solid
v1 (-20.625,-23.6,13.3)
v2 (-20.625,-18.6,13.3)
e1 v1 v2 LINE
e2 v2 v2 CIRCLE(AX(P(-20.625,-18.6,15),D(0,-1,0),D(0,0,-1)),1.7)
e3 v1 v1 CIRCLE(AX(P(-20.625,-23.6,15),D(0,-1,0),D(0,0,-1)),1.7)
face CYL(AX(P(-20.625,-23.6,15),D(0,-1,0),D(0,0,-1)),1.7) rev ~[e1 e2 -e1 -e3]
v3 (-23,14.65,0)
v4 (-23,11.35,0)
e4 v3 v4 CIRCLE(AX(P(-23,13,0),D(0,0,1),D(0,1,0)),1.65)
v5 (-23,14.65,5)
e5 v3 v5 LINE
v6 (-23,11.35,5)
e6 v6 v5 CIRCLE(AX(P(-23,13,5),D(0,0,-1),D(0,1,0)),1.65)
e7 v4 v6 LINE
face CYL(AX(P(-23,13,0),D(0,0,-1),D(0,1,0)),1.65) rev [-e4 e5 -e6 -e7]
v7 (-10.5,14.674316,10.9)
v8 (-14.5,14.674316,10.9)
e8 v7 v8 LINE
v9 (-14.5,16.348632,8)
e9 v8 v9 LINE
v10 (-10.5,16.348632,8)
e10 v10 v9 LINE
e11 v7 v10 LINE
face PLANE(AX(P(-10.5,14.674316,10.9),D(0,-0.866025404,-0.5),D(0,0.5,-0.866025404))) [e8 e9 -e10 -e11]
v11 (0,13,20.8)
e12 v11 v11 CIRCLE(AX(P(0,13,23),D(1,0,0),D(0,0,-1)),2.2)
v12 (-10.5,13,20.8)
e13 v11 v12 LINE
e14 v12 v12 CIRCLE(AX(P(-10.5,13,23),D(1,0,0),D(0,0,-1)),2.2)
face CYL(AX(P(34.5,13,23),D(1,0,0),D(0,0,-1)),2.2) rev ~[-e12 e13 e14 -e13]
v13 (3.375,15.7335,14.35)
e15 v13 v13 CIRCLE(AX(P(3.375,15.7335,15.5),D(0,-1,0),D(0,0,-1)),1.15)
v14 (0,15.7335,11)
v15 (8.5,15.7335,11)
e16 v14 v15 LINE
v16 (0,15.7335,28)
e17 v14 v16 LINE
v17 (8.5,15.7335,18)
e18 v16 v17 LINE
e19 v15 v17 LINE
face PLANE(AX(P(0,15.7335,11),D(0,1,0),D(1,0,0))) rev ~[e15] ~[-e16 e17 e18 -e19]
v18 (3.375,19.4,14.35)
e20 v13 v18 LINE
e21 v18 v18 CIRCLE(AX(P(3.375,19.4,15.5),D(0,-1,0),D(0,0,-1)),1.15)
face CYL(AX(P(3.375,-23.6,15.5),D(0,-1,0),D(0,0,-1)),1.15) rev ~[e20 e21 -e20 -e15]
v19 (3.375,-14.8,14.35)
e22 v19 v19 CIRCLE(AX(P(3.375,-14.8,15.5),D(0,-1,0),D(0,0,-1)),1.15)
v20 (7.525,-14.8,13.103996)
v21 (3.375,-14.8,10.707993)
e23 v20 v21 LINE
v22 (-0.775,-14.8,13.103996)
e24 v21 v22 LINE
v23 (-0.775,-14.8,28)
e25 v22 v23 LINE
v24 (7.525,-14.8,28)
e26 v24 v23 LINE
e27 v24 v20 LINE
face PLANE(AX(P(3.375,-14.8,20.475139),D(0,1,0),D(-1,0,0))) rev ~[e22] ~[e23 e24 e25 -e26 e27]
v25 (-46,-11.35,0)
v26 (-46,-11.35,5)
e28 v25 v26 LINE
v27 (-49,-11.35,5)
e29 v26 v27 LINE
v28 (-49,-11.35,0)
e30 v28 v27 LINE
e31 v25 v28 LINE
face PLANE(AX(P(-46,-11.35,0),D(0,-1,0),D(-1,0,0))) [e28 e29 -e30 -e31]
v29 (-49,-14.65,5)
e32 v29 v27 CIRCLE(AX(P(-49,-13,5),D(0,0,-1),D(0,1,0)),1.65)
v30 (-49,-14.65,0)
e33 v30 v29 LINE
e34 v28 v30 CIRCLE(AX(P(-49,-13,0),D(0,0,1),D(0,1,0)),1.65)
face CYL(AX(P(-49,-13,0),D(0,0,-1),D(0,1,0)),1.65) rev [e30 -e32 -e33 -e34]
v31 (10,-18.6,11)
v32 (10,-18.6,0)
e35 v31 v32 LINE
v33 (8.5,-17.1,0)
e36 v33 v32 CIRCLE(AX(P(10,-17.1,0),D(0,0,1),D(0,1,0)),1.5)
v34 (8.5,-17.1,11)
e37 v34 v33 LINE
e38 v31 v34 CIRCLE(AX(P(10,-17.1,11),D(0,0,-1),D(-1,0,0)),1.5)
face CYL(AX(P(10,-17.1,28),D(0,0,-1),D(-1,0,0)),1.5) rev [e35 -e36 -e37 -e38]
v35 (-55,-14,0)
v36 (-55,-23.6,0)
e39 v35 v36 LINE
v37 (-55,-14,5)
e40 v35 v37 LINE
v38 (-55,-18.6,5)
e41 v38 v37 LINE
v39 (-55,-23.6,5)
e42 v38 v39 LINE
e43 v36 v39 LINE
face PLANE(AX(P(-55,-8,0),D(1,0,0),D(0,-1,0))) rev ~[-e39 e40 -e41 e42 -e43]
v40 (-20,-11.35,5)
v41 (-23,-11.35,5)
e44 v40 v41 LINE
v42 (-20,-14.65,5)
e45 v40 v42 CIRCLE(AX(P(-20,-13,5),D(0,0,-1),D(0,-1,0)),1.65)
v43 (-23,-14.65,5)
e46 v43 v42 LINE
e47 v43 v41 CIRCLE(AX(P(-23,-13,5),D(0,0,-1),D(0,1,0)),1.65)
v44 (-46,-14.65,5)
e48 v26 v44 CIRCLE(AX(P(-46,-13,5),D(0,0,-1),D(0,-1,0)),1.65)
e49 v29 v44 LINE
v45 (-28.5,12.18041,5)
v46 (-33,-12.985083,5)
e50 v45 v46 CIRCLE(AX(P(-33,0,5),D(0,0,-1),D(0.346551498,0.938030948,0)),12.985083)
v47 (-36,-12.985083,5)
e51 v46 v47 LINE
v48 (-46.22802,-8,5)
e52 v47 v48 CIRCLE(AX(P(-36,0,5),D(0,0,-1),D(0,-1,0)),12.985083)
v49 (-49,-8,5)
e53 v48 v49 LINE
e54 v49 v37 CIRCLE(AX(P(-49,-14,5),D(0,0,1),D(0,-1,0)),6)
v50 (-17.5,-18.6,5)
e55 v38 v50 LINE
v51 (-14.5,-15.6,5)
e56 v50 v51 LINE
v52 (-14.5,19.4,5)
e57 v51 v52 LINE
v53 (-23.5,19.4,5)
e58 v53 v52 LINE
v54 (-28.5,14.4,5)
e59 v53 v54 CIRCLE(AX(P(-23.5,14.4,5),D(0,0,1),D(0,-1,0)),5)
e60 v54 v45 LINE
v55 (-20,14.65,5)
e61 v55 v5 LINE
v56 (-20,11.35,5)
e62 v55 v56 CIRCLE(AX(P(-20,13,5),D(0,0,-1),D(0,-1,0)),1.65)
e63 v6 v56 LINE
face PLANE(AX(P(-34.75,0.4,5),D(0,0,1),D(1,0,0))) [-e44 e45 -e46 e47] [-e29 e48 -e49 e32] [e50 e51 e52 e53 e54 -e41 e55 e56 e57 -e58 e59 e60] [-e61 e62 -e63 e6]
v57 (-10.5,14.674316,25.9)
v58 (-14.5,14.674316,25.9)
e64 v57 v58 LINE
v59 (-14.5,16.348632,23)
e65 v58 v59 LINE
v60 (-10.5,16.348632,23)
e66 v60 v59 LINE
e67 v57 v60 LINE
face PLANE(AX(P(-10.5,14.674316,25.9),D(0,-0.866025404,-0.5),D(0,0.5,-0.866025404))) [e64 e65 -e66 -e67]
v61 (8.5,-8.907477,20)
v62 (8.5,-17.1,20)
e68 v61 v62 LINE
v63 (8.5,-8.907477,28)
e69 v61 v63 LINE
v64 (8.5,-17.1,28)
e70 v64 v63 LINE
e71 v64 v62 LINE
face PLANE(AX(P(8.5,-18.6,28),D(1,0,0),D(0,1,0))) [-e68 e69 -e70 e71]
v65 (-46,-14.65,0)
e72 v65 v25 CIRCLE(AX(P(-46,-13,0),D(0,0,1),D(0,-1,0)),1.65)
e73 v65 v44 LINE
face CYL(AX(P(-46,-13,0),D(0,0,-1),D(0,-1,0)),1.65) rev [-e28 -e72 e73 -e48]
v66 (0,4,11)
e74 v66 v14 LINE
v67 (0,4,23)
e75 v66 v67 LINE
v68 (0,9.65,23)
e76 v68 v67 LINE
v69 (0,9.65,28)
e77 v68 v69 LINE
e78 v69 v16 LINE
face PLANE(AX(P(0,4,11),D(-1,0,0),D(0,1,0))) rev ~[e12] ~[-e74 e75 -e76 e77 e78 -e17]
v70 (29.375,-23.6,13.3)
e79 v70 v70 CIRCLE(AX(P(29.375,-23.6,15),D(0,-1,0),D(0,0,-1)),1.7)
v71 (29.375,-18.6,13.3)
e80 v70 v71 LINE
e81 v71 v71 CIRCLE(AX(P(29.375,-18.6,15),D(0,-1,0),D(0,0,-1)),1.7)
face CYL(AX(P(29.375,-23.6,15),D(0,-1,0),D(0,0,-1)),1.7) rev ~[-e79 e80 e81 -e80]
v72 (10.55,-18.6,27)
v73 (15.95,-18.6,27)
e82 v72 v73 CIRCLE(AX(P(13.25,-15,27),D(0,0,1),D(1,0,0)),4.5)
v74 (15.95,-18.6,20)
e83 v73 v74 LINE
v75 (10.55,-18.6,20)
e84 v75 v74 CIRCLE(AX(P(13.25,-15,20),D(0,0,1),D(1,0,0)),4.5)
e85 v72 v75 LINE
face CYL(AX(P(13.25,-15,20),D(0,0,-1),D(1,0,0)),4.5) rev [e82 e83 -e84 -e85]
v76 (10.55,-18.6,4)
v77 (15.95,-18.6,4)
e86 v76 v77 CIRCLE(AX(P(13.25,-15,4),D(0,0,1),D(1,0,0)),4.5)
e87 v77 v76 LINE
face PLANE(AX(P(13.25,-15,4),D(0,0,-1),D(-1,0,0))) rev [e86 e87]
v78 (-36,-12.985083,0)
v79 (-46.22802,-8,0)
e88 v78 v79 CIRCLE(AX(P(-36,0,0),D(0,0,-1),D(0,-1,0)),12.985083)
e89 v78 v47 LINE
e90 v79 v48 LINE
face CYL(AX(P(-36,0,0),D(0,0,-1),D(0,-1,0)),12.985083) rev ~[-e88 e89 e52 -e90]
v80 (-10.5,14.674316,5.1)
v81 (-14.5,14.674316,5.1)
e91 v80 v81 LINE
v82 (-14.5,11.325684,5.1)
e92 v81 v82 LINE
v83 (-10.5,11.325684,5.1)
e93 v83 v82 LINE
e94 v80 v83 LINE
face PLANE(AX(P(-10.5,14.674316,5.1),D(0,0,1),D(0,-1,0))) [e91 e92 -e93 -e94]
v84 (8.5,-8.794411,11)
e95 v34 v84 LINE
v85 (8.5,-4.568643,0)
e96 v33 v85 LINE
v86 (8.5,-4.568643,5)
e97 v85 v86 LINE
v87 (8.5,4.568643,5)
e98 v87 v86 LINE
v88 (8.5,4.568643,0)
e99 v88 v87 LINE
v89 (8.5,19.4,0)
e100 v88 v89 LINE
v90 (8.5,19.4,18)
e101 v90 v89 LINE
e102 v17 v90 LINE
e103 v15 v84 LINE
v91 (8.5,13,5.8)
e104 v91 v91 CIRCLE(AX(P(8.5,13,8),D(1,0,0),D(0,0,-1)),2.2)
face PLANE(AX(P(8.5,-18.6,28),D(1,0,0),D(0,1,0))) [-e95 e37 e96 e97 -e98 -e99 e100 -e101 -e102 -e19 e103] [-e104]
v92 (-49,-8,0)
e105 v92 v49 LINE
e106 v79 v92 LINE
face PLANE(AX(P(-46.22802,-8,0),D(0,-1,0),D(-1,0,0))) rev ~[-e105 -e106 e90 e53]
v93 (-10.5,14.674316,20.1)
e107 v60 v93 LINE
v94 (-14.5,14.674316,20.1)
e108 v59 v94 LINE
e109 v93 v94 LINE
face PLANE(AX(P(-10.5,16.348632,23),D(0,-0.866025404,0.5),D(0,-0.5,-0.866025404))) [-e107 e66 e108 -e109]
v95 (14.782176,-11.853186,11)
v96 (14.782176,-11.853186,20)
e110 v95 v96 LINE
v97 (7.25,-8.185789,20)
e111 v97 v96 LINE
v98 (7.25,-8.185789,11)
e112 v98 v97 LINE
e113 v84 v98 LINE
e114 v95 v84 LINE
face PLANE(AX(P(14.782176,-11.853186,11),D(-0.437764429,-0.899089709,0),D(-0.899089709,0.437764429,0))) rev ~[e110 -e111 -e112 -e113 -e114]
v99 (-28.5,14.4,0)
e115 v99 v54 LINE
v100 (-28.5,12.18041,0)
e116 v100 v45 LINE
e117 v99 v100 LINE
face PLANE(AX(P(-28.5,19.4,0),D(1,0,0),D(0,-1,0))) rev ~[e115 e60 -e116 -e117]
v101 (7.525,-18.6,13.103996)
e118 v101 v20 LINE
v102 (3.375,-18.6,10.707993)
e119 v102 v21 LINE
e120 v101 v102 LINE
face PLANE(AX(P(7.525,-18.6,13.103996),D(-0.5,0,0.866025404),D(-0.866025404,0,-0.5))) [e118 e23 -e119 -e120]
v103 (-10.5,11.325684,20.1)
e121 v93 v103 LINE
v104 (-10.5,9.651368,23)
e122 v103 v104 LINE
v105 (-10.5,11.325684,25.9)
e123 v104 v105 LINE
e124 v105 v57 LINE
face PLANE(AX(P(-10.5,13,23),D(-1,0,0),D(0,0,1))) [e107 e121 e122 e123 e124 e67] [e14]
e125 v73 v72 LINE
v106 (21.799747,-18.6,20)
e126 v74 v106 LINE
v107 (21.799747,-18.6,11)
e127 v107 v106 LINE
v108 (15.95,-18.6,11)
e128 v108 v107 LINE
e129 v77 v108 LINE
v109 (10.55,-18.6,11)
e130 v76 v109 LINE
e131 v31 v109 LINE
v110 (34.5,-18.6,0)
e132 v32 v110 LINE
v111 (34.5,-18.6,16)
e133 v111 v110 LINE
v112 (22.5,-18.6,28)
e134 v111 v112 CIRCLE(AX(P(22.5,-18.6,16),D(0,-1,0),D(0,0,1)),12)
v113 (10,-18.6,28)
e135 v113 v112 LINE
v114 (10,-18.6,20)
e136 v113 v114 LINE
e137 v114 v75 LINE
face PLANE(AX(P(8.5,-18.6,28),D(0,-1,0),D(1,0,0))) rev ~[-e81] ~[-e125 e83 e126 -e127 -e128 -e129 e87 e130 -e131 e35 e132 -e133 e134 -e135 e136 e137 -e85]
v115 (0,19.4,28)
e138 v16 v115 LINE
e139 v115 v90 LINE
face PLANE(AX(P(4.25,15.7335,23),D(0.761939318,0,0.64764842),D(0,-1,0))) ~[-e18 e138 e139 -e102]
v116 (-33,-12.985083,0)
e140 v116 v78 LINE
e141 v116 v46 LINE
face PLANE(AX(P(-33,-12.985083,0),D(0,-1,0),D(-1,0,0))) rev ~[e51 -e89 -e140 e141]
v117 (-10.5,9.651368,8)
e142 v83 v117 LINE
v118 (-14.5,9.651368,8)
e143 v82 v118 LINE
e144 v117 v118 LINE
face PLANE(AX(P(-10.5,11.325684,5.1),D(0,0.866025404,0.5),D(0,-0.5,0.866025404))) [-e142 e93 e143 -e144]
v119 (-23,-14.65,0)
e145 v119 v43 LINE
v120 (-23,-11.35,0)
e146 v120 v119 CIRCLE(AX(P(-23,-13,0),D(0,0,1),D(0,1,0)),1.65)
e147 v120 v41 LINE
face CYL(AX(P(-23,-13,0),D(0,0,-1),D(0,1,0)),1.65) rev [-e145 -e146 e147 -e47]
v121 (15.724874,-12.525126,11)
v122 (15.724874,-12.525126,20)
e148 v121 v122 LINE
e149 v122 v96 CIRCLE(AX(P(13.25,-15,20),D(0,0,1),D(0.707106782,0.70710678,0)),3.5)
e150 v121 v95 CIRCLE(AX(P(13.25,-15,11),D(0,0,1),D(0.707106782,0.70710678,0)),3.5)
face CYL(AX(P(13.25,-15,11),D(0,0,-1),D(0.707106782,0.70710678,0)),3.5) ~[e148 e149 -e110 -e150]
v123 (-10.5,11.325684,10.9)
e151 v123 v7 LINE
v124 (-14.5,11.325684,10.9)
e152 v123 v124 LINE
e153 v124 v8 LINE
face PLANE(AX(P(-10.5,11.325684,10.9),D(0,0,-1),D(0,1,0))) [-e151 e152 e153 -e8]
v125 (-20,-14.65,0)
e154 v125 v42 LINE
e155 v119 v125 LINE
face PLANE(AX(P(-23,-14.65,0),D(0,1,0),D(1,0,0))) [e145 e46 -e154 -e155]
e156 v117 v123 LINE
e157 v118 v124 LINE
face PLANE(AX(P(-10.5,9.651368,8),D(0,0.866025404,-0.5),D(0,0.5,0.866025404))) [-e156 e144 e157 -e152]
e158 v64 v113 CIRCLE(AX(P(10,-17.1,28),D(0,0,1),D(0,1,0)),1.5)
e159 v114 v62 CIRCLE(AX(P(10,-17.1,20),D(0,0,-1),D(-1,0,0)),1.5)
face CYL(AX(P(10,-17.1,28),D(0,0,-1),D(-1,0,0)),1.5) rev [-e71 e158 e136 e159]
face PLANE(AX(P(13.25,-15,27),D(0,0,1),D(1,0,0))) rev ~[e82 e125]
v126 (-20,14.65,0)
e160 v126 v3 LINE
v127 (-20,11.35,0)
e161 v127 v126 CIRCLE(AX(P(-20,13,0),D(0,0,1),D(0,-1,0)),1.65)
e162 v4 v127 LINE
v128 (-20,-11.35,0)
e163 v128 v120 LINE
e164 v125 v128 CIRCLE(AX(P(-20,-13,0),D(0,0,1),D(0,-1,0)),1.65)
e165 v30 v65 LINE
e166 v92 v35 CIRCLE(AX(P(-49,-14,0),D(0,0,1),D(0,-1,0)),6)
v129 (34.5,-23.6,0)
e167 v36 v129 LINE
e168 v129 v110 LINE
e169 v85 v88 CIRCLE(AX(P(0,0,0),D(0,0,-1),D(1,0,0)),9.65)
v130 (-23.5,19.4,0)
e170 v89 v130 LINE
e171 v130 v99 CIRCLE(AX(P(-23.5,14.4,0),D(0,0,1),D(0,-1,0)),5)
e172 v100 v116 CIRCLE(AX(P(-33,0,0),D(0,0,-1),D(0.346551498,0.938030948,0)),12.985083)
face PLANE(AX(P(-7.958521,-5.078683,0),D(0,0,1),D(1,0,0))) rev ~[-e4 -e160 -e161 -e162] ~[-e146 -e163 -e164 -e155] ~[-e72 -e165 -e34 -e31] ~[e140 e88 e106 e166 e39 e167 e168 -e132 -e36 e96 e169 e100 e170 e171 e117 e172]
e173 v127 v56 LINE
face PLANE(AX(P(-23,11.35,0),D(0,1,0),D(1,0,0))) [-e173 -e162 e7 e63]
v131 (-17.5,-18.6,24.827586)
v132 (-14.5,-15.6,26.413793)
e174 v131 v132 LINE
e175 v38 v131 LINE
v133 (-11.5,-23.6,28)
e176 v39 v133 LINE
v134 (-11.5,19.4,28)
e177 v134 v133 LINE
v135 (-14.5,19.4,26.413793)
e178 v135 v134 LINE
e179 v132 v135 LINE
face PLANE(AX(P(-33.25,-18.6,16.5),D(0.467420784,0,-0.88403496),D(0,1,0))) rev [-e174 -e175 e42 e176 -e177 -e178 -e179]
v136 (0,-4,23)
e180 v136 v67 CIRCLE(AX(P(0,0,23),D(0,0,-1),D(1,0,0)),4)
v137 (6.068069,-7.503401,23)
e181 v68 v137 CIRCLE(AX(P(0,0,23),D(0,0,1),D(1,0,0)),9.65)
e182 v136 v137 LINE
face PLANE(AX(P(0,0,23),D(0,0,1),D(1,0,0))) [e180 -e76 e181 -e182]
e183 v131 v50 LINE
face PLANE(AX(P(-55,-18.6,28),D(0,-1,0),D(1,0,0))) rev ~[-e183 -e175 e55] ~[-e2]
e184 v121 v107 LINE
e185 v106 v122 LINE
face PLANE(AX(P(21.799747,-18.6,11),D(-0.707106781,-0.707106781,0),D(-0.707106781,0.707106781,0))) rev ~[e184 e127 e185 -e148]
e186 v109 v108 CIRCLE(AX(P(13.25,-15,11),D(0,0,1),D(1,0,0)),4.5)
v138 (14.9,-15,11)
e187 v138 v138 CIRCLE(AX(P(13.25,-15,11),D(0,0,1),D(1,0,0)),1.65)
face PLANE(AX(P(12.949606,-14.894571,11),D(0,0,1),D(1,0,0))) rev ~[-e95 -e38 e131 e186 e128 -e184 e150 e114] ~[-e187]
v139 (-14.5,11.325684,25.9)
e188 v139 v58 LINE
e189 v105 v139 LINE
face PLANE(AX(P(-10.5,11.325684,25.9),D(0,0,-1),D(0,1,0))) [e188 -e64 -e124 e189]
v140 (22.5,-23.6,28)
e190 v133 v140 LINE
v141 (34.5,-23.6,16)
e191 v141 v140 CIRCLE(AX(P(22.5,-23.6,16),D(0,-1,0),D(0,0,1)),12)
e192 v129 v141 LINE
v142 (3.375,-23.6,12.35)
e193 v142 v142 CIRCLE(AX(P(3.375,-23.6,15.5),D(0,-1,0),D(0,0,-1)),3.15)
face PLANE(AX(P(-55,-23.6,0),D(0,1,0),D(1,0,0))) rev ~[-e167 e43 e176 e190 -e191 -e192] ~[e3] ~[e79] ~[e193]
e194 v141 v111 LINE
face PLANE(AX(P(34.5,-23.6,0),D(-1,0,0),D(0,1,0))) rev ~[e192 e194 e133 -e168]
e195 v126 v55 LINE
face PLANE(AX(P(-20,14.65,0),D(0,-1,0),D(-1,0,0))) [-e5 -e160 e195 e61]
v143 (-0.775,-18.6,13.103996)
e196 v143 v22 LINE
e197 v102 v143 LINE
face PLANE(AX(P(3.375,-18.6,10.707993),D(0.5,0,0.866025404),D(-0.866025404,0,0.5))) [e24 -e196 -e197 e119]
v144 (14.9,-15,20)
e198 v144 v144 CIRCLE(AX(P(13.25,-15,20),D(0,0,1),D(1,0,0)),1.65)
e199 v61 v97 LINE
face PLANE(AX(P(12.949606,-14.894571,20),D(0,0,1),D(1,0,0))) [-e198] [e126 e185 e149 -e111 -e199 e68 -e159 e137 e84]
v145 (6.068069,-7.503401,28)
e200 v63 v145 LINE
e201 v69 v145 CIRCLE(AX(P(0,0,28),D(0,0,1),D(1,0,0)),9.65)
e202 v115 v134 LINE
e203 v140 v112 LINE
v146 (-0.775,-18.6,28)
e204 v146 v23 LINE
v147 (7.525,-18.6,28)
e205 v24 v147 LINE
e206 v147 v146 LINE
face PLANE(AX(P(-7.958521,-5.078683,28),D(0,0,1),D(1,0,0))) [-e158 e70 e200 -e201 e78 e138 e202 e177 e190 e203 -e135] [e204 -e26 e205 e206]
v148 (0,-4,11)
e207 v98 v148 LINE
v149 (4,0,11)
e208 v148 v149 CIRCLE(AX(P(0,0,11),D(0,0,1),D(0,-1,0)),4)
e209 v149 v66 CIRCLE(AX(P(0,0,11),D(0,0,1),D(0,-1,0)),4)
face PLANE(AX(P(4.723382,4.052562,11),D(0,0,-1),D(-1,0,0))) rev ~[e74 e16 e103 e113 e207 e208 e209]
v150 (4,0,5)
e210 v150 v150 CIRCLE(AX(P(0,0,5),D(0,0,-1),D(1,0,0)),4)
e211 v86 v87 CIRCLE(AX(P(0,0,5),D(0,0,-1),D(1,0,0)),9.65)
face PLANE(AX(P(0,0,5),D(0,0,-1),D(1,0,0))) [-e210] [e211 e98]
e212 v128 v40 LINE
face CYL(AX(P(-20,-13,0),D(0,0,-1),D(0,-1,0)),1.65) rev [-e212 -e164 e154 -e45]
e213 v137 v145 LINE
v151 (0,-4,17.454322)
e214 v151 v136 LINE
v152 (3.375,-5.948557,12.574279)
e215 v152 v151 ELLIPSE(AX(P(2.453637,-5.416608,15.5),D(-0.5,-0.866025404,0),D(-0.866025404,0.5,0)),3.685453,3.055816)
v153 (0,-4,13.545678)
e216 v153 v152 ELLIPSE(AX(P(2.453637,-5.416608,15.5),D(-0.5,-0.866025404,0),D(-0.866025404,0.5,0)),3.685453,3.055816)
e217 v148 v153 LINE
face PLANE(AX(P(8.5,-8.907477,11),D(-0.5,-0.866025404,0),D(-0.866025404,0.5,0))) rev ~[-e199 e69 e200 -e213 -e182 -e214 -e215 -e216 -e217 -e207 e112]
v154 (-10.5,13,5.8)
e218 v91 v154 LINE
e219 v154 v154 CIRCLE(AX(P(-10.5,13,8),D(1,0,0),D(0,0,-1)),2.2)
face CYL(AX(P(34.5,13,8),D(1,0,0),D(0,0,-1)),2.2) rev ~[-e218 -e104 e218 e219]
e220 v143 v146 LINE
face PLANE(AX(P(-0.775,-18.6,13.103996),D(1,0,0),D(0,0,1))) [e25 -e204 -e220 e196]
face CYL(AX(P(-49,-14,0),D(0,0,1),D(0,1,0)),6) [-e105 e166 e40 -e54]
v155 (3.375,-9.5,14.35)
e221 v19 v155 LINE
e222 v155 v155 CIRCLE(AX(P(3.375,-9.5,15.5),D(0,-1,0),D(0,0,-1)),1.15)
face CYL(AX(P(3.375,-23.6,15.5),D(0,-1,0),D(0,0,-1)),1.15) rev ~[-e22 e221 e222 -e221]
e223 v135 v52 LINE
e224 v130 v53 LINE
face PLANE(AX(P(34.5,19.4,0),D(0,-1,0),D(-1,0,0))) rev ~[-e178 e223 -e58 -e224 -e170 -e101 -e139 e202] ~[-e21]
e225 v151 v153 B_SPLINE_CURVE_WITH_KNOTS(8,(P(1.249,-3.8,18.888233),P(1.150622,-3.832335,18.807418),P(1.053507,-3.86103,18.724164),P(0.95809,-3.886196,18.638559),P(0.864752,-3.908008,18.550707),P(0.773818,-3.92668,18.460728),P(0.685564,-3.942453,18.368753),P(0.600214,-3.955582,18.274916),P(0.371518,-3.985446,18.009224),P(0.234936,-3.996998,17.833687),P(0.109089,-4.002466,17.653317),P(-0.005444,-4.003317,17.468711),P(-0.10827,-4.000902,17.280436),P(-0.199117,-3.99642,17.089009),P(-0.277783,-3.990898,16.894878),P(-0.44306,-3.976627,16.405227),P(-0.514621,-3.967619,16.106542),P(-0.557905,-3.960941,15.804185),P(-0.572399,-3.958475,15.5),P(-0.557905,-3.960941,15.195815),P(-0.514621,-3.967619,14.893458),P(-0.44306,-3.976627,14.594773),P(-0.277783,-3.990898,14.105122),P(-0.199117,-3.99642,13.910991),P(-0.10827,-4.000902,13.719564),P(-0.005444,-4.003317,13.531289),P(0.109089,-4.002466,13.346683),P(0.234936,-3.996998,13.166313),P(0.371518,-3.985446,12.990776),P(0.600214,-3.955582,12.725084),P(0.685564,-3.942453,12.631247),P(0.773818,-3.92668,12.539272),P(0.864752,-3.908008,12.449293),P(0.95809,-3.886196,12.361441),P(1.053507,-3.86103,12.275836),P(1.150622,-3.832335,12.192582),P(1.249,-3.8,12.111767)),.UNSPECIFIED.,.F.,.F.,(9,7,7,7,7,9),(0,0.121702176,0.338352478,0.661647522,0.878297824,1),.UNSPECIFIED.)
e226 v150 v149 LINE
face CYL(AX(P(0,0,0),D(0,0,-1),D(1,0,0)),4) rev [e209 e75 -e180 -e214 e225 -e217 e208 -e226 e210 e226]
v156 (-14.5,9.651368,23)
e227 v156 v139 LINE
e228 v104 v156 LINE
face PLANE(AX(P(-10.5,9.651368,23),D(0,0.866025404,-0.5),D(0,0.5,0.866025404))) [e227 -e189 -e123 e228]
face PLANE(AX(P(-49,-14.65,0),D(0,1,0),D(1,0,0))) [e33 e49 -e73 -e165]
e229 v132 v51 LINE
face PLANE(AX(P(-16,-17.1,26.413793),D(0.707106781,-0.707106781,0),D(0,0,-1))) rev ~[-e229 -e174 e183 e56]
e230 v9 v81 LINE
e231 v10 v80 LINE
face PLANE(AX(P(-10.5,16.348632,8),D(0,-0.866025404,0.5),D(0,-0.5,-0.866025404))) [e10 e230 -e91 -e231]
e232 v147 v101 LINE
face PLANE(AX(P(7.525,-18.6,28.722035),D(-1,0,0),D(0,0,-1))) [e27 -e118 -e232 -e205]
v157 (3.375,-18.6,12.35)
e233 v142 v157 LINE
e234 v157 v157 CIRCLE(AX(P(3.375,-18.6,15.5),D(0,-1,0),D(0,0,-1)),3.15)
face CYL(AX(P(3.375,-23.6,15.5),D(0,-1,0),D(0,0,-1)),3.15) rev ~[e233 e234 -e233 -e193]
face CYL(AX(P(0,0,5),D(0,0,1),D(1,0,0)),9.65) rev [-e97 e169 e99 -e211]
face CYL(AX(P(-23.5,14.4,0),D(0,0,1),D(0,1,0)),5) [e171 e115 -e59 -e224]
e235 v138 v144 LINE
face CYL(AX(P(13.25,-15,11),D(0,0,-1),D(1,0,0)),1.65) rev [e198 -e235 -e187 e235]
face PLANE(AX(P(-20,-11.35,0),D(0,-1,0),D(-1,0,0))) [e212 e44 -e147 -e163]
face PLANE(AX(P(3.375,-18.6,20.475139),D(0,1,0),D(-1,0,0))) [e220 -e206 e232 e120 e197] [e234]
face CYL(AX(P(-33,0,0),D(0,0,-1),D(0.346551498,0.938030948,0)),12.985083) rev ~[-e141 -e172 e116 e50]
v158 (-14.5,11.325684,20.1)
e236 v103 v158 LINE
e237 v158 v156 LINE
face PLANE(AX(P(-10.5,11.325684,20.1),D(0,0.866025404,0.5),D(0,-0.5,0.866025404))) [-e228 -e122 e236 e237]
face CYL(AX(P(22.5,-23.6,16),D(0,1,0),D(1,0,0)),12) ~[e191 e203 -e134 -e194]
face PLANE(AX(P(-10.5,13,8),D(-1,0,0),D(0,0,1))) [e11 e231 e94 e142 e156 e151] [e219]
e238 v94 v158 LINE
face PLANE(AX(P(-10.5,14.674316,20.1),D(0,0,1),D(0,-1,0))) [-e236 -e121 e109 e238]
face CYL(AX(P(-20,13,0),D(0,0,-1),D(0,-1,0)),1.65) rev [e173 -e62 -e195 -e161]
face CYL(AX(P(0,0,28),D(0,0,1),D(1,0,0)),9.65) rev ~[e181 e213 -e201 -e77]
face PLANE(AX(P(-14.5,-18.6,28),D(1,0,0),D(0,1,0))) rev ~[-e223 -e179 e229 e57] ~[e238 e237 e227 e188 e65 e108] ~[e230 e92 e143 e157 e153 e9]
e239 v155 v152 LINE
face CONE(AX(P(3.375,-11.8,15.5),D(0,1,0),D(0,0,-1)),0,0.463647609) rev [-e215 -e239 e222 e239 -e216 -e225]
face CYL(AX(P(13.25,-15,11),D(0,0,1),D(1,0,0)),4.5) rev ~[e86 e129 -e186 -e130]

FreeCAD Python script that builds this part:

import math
import FreeCAD as App
import Part
import Sketcher

V = App.Vector
Q = App.Units.Quantity


def edges_at(feature, points):
    """Names of the edges that pass closest to the given points."""
    edges = feature.Shape.Edges
    near = lambda p: min(range(len(edges)), key=lambda i: edges[i].distToShape(Part.Vertex(*p))[0])
    return sorted({f"Edge{near(p) + 1}" for p in points})


def add_polygon(sketch, points):
    """Adds a closed chain of lines whose ends are joined by coincident constraints."""
    first, n = sketch.GeometryCount, len(points)
    for a, b in zip(points, points[1:] + points[:1]):
        sketch.addGeometry(Part.LineSegment(App.Vector(*a, 0), App.Vector(*b, 0)), False)
    for i in range(n):
        sketch.addConstraint(Sketcher.Constraint("Coincident", first + i, 2, first + (i + 1) % n, 1))

doc = App.newDocument("Part")
body = doc.addObject("PartDesign::Body", "Body")

# Sketch on XY plane
sketch1 = body.newObject("Sketcher::SketchObject", "Sketch")
sketch1.AttachmentSupport = (doc.getObject("XY_Plane"), [""])
sketch1.MapMode = "FlatFace"
sketch1.addGeometry([
    Part.LineSegment(V(-55, -23.6, 0), V(34.5, -23.6, 0)),  # 0
    Part.LineSegment(V(34.5, -23.6, 0), V(34.5, 19.4, 0)),  # 1
    Part.LineSegment(V(34.5, 19.4, 0), V(-28.5, 19.4, 0)),  # 2
    Part.LineSegment(V(-28.5, 19.4, 0), V(-28.5, 12.18041, 0)),  # 3
    Part.ArcOfCircle(Part.Circle(V(-33, 0, 0), V(0, 0, 1), 12.985083), math.radians(-90), math.radians(69.723466)),  # 4
    Part.LineSegment(V(-33, -12.985083, 0), V(-36, -12.985083, 0)),  # 5
    Part.ArcOfCircle(Part.Circle(V(-36, 0, 0), V(0, 0, 1), 12.985083), math.radians(-141.968723), math.radians(-90)),  # 6
    Part.LineSegment(V(-46.22802, -8, 0), V(-55, -8, 0)),  # 7
    Part.LineSegment(V(-55, -8, 0), V(-55, -23.6, 0)),  # 8
    Part.LineSegment(V(-49, -11.35, 0), V(-46, -11.35, 0)),  # 9
    Part.ArcOfCircle(Part.Circle(V(-46, -13, 0), V(0, 0, 1), 1.65), math.radians(-90), math.radians(90)),  # 10
    Part.LineSegment(V(-46, -14.65, 0), V(-49, -14.65, 0)),  # 11
    Part.ArcOfCircle(Part.Circle(V(-49, -13, 0), V(0, 0, 1), 1.65), math.radians(90), math.radians(270)),  # 12
    Part.LineSegment(V(-20, -14.65, 0), V(-23, -14.65, 0)),  # 13
    Part.ArcOfCircle(Part.Circle(V(-23, -13, 0), V(0, 0, 1), 1.65), math.radians(90), math.radians(270)),  # 14
    Part.LineSegment(V(-23, -11.35, 0), V(-20, -11.35, 0)),  # 15
    Part.ArcOfCircle(Part.Circle(V(-20, -13, 0), V(0, 0, 1), 1.65), math.radians(-90), math.radians(90)),  # 16
    Part.Circle(V(0, 0, 0), V(0, 0, 1), 4),  # 17
    Part.LineSegment(V(-20, 11.35, 0), V(-23, 11.35, 0)),  # 18
    Part.ArcOfCircle(Part.Circle(V(-23, 13, 0), V(0, 0, 1), 1.65), math.radians(90), math.radians(270)),  # 19
    Part.LineSegment(V(-23, 14.65, 0), V(-20, 14.65, 0)),  # 20
    Part.ArcOfCircle(Part.Circle(V(-20, 13, 0), V(0, 0, 1), 1.65), math.radians(-90), math.radians(90)),  # 21
], False)
sketch1.addConstraint([
    Sketcher.Constraint("Coincident", 0, 2, 1, 1),
    Sketcher.Constraint("Coincident", 1, 2, 2, 1),
    Sketcher.Constraint("Coincident", 2, 2, 3, 1),
    Sketcher.Constraint("Coincident", 3, 2, 4, 2),
    Sketcher.Constraint("Tangent", 4, 1, 5, 1),
    Sketcher.Constraint("Tangent", 5, 2, 6, 2),
    Sketcher.Constraint("Coincident", 6, 1, 7, 1),
    Sketcher.Constraint("Coincident", 7, 2, 8, 1),
    Sketcher.Constraint("Coincident", 8, 2, 0, 1),
    Sketcher.Constraint("Tangent", 9, 2, 10, 2),
    Sketcher.Constraint("Tangent", 10, 1, 11, 1),
    Sketcher.Constraint("Tangent", 11, 2, 12, 2),
    Sketcher.Constraint("Tangent", 12, 1, 9, 1),
    Sketcher.Constraint("Tangent", 13, 2, 14, 2),
    Sketcher.Constraint("Tangent", 14, 1, 15, 1),
    Sketcher.Constraint("Tangent", 15, 2, 16, 2),
    Sketcher.Constraint("Tangent", 16, 1, 13, 1),
    Sketcher.Constraint("Tangent", 18, 2, 19, 2),
    Sketcher.Constraint("Tangent", 19, 1, 20, 1),
    Sketcher.Constraint("Tangent", 20, 2, 21, 2),
    Sketcher.Constraint("Tangent", 21, 1, 18, 1),
    Sketcher.Constraint("Horizontal", 0),
    Sketcher.Constraint("Vertical", 1),
    Sketcher.Constraint("Horizontal", 2),
    Sketcher.Constraint("Vertical", 3),
    Sketcher.Constraint("Horizontal", 5),
    Sketcher.Constraint("Horizontal", 7),
    Sketcher.Constraint("Vertical", 8),
    Sketcher.Constraint("Horizontal", 9),
    Sketcher.Constraint("Horizontal", 11),
    Sketcher.Constraint("Horizontal", 13),
    Sketcher.Constraint("Horizontal", 15),
    Sketcher.Constraint("Horizontal", 18),
    Sketcher.Constraint("Horizontal", 20),
    Sketcher.Constraint("Coincident", 17, 3, -1, 1),
    Sketcher.Constraint("Equal", 4, 6),
    Sketcher.Constraint("Equal", 12, 14),
    Sketcher.Constraint("Equal", 16, 19),
    Sketcher.Constraint("Symmetric", 14, 3, 19, 3, -1),
    Sketcher.Constraint("PointOnObject", 4, 3, -1),
    Sketcher.Constraint("Horizontal", 12, 3, 14, 3),
    Sketcher.Constraint("Vertical", 16, 3, 21, 3),
    Sketcher.Constraint("Equal", 5, 9),
    Sketcher.Constraint("Equal", 11, 13),
    Sketcher.Constraint("Diameter", 17, Q("8 mm")),
    Sketcher.Constraint("DistanceX", 2, 2, 2, 1, Q("63 mm")),
    Sketcher.Constraint("DistanceX", 5, 2, 5, 1, Q("3 mm")),
    Sketcher.Constraint("DistanceY", 1, 1, 1, 2, Q("43 mm")),
    Sketcher.Constraint("Radius", 10, Q("1.65 mm")),
    Sketcher.Constraint("DistanceX", 0, 1, 0, 2, Q("89.5 mm")),
    Sketcher.Constraint("DistanceY", 8, 2, 8, 1, Q("15.6 mm")),
    Sketcher.Constraint("DistanceX", 4, 3, -1, 1, Q("33 mm")),
    Sketcher.Constraint("DistanceX", 10, 3, -1, 1, Q("46 mm")),
    Sketcher.Constraint("DistanceY", 10, 3, -1, 1, Q("13 mm")),
    Sketcher.Constraint("DistanceX", 14, 3, -1, 1, Q("23 mm")),
    Sketcher.Constraint("DistanceY", 6, 1, -1, 1, Q("8 mm")),
    Sketcher.Constraint("DistanceX", 7, 2, -1, 1, Q("55 mm")),
    Sketcher.Constraint("Radius", 4, Q("12.985083 mm")),
])
pad1 = body.newObject("PartDesign::Pad", "Pad")
pad1.Profile = sketch1
pad1.Length = 28

# Sketch on XY plane
sketch2 = body.newObject("Sketcher::SketchObject", "Sketch001")
sketch2.AttachmentSupport = (doc.getObject("XY_Plane"), [""])
sketch2.MapMode = "FlatFace"
sketch2.AttachmentOffset = App.Placement(V(0, 0, 28), App.Rotation())
add_polygon(sketch2, [(-55, 19.4), (-55, -18.6), (-14.5, -18.6), (-14.5, 19.4)])  # lines 0-3
sketch2.addConstraint([
    Sketcher.Constraint("Vertical", 0),
    Sketcher.Constraint("Horizontal", 1),
    Sketcher.Constraint("Vertical", 2),
    Sketcher.Constraint("Horizontal", 3),
    Sketcher.Constraint("DistanceY", 0, 2, 0, 1, Q("38 mm")),
    Sketcher.Constraint("DistanceX", 1, 1, 1, 2, Q("40.5 mm")),
    Sketcher.Constraint("DistanceX", 0, 2, -1, 1, Q("55 mm")),
    Sketcher.Constraint("DistanceY", 0, 2, -1, 1, Q("18.6 mm")),
])
pocket1 = body.newObject("PartDesign::Pocket", "Pocket")
pocket1.Profile = sketch2
pocket1.Length = 23

# Sketch on XY plane
sketch3 = body.newObject("Sketcher::SketchObject", "Sketch002")
sketch3.AttachmentSupport = (doc.getObject("XY_Plane"), [""])
sketch3.MapMode = "FlatFace"
sketch3.AttachmentOffset = App.Placement(V(0, 0, 28), App.Rotation())
sketch3.addGeometry(Part.Circle(V(0, 0, 0), V(0, 0, 1), 9.65), False)
sketch3.addConstraint([
    Sketcher.Constraint("Coincident", 0, 3, -1, 1),
    Sketcher.Constraint("Diameter", 0, Q("19.3 mm")),
])
pocket2 = body.newObject("PartDesign::Pocket", "Pocket001")
pocket2.Profile = sketch3
pocket2.Length = 5

# Sketch on XY plane
sketch4 = body.newObject("Sketcher::SketchObject", "Sketch003")
sketch4.AttachmentSupport = (doc.getObject("XY_Plane"), [""])
sketch4.MapMode = "FlatFace"
sketch4.AttachmentOffset = App.Placement(V(0, 0, 5), App.Rotation())
sketch4.addGeometry(Part.Circle(V(0, 0, 0), V(0, 0, 1), 9.65), False)
sketch4.addConstraint([
    Sketcher.Constraint("Coincident", 0, 3, -1, 1),
    Sketcher.Constraint("Diameter", 0, Q("19.3 mm")),
])
pocket3 = body.newObject("PartDesign::Pocket", "Pocket002")
pocket3.Profile = sketch4
pocket3.Length = 5

# Sketch on XZ plane
sketch5 = body.newObject("Sketcher::SketchObject", "Sketch004")
sketch5.AttachmentSupport = (doc.getObject("XZ_Plane"), [""])
sketch5.MapMode = "FlatFace"
sketch5.AttachmentOffset = App.Placement(V(0, 0, 23.6), App.Rotation())
sketch5.addGeometry(Part.Circle(V(3.375, 15.5, 0), V(0, 0, 1), 1.15), False)
sketch5.addConstraint([
    Sketcher.Constraint("Diameter", 0, Q("2.3 mm")),
    Sketcher.Constraint("DistanceY", -1, 1, 0, 3, Q("15.5 mm")),
    Sketcher.Constraint("DistanceX", -1, 1, 0, 3, Q("3.375 mm")),
])
pocket4 = body.newObject("PartDesign::Pocket", "Pocket003")
pocket4.Profile = sketch5
pocket4.Type = "ThroughAll"
doc.recompute()

chamfer = body.newObject("PartDesign::Chamfer", "Chamfer")
chamfer.Base = (pocket4, edges_at(pocket4, [(-55, -21.1, 28)]))
chamfer.ChamferType = "Two distances"
chamfer.Size = 23
chamfer.Size2 = 43.5

# Sketch on YZ plane
sketch6 = body.newObject("Sketcher::SketchObject", "Sketch005")
sketch6.AttachmentSupport = (doc.getObject("YZ_Plane"), [""])
sketch6.MapMode = "FlatFace"
sketch6.AttachmentOffset = App.Placement(V(0, 0, 34.5), App.Rotation())
sketch6.addGeometry([
    Part.Circle(V(13, 8, 0), V(0, 0, 1), 2.2),
    Part.Circle(V(13, 23, 0), V(0, 0, 1), 2.2),
], False)
sketch6.addConstraint([
    Sketcher.Constraint("Equal", 0, 1),
    Sketcher.Constraint("Vertical", 0, 3, 1, 3),
    Sketcher.Constraint("Diameter", 0, Q("4.4 mm")),
    Sketcher.Constraint("DistanceX", -1, 1, 0, 3, Q("13 mm")),
    Sketcher.Constraint("DistanceY", -1, 1, 0, 3, Q("8 mm")),
    Sketcher.Constraint("DistanceY", -1, 1, 1, 3, Q("23 mm")),
])
pocket5 = body.newObject("PartDesign::Pocket", "Pocket004")
pocket5.Profile = sketch6
pocket5.Type = "ThroughAll"

# Sketch on YZ plane
sketch7 = body.newObject("Sketcher::SketchObject", "Sketch006")
sketch7.AttachmentSupport = (doc.getObject("YZ_Plane"), [""])
sketch7.MapMode = "FlatFace"
sketch7.AttachmentOffset = App.Placement(V(0, 0, -14.5), App.Rotation())
add_polygon(sketch7, [(14.674316, 5.1), (11.325684, 5.1), (9.651368, 8), (11.325684, 10.9), (14.674316, 10.9), (16.348632, 8)])  # lines 0-5
add_polygon(sketch7, [(11.325684, 25.9), (14.674316, 25.9), (16.348632, 23), (14.674316, 20.1), (11.325684, 20.1), (9.651368, 23)])  # lines 6-11
sketch7.addConstraint([
    Sketcher.Constraint("Horizontal", 0),
    Sketcher.Constraint("Horizontal", 3),
    Sketcher.Constraint("Horizontal", 6),
    Sketcher.Constraint("Horizontal", 9),
    Sketcher.Constraint("Parallel", 1, 4),
    Sketcher.Constraint("Parallel", 2, 5),
    Sketcher.Constraint("Parallel", 4, 7),
    Sketcher.Constraint("Parallel", 5, 8),
    Sketcher.Constraint("Parallel", 7, 10),
    Sketcher.Constraint("Parallel", 8, 11),
    Sketcher.Constraint("Horizontal", 1, 2, 4, 2),
    Sketcher.Constraint("Horizontal", 7, 2, 10, 2),
    Sketcher.Constraint("Vertical", 0, 2, 2, 2),
    Sketcher.Constraint("Vertical", 3, 2, 5, 2),
    Sketcher.Constraint("Vertical", 5, 2, 6, 2),
    Sketcher.Constraint("Vertical", 4, 2, 7, 2),
    Sketcher.Constraint("Vertical", 6, 2, 8, 2),
    Sketcher.Constraint("Vertical", 2, 2, 9, 2),
    Sketcher.Constraint("Angle", 1, Q("120 deg")),
    Sketcher.Constraint("DistanceY", -1, 1, 1, 2, Q("8 mm")),
    Sketcher.Constraint("DistanceY", -1, 1, 7, 2, Q("23 mm")),
    Sketcher.Constraint("DistanceY", -1, 1, 0, 2, Q("5.1 mm")),
    Sketcher.Constraint("DistanceX", 0, 2, 0, 1, Q("3.348632 mm")),
    Sketcher.Constraint("DistanceX", -1, 1, 1, 2, Q("9.651368 mm")),
])
pocket6 = body.newObject("PartDesign::Pocket", "Pocket005")
pocket6.Profile = sketch7
pocket6.Type = "TwoLengths"
pocket6.Length = 3
pocket6.Length2 = 4
doc.recompute()

chamfer2 = body.newObject("PartDesign::Chamfer", "Chamfer001")
chamfer2.Base = (pocket6, edges_at(pocket6, [(-14.5, -18.6, 15.707)]))
chamfer2.Size = 3

# Sketch on XZ plane
sketch8 = body.newObject("Sketcher::SketchObject", "Sketch007")
sketch8.AttachmentSupport = (doc.getObject("XZ_Plane"), [""])
sketch8.MapMode = "FlatFace"
sketch8.AttachmentOffset = App.Placement(V(0, 0, 23.6), App.Rotation())
sketch8.addGeometry([
    Part.Circle(V(-20.625, 15, 0), V(0, 0, 1), 1.7),
    Part.Circle(V(29.375, 15, 0), V(0, 0, 1), 1.7),
], False)
sketch8.addConstraint([
    Sketcher.Constraint("Equal", 0, 1),
    Sketcher.Constraint("Horizontal", 0, 3, 1, 3),
    Sketcher.Constraint("Diameter", 0, Q("3.4 mm")),
    Sketcher.Constraint("DistanceY", -1, 1, 0, 3, Q("15 mm")),
    Sketcher.Constraint("DistanceX", 0, 3, 1, 3, Q("50 mm")),
    Sketcher.Constraint("DistanceX", 0, 3, -1, 1, Q("20.625 mm")),
])
pocket7 = body.newObject("PartDesign::Pocket", "Pocket006")
pocket7.Profile = sketch8
pocket7.Type = "ThroughAll"

# Sketch on XY plane
sketch9 = body.newObject("Sketcher::SketchObject", "Sketch008")
sketch9.AttachmentSupport = (doc.getObject("XY_Plane"), [""])
sketch9.MapMode = "FlatFace"
sketch9.AttachmentOffset = App.Placement(V(0, 0, 28), App.Rotation())
add_polygon(sketch9, [(8.5, 19.4), (8.5, -18.6), (34.5, -18.6), (34.5, 19.4)])  # lines 0-3
sketch9.addConstraint([
    Sketcher.Constraint("Vertical", 0),
    Sketcher.Constraint("Horizontal", 1),
    Sketcher.Constraint("Vertical", 2),
    Sketcher.Constraint("Horizontal", 3),
    Sketcher.Constraint("DistanceX", 1, 1, 1, 2, Q("26 mm")),
    Sketcher.Constraint("DistanceY", 0, 2, 0, 1, Q("38 mm")),
    Sketcher.Constraint("DistanceX", -1, 1, 0, 2, Q("8.5 mm")),
    Sketcher.Constraint("DistanceY", 0, 2, -1, 1, Q("18.6 mm")),
])
pocket8 = body.newObject("PartDesign::Pocket", "Pocket007")
pocket8.Profile = sketch9
pocket8.Type = "ThroughAll"
doc.recompute()

fillet = body.newObject("PartDesign::Fillet", "Fillet")
fillet.Base = (pocket8, edges_at(pocket8, [(8.5, -18.6, 14)]))
fillet.Radius = 1.5

# Sketch on XY plane
sketch10 = body.newObject("Sketcher::SketchObject", "Sketch009")
sketch10.AttachmentSupport = (doc.getObject("XY_Plane"), [""])
sketch10.MapMode = "FlatFace"
sketch10.AttachmentOffset = App.Placement(V(0, 0, 11), App.Rotation())
sketch10.addGeometry([
    Part.LineSegment(V(0, 15.7335, 0), V(0, 4, 0)),  # 0
    Part.ArcOfCircle(Part.Circle(V(0, 0, 0), V(0, 0, 1), 4), math.radians(-90), math.radians(90)),  # 1
    Part.LineSegment(V(0, -4, 0), V(8.5, -8.907477, 0)),  # 2
    Part.LineSegment(V(8.5, -8.907477, 0), V(8.5, 15.7335, 0)),  # 3
    Part.LineSegment(V(8.5, 15.7335, 0), V(0, 15.7335, 0)),  # 4
], False)
sketch10.addConstraint([
    Sketcher.Constraint("Coincident", 0, 2, 1, 2),
    Sketcher.Constraint("Coincident", 1, 1, 2, 1),
    Sketcher.Constraint("Coincident", 2, 2, 3, 1),
    Sketcher.Constraint("Coincident", 3, 2, 4, 1),
    Sketcher.Constraint("Coincident", 4, 2, 0, 1),
    Sketcher.Constraint("Vertical", 0),
    Sketcher.Constraint("Vertical", 3),
    Sketcher.Constraint("Horizontal", 4),
    Sketcher.Constraint("Coincident", 1, 3, -1, 1),
    Sketcher.Constraint("PointOnObject", 0, 2, -2),
    Sketcher.Constraint("PointOnObject", 1, 1, -2),
    Sketcher.Constraint("Radius", 1, Q("4 mm")),
    Sketcher.Constraint("Angle", 2, Q("-30 deg")),
    Sketcher.Constraint("DistanceX", 4, 2, 4, 1, Q("8.5 mm")),
    Sketcher.Constraint("DistanceY", 0, 2, 0, 1, Q("11.7335 mm")),
])
pocket9 = body.newObject("PartDesign::Pocket", "Pocket008")
pocket9.Profile = sketch10
pocket9.Length = 17
pocket9.Reversed = True

# Sketch on XY plane
sketch11 = body.newObject("Sketcher::SketchObject", "Sketch010")
sketch11.AttachmentSupport = (doc.getObject("XY_Plane"), [""])
sketch11.MapMode = "FlatFace"
sketch11.AttachmentOffset = App.Placement(V(0, 0, 15.5), App.Rotation())
add_polygon(sketch11, [(3.375, -11.8), (7.375, -3.8), (3.375, -3.8)])  # lines 0-2
sketch11.addGeometry(Part.LineSegment(V(3.375, -3.8, 0), V(3.375, -11.8, 0)), True)  # axis
sketch11.addConstraint([
    Sketcher.Constraint("Horizontal", 1),
    Sketcher.Constraint("Vertical", 2),
    Sketcher.Constraint("Vertical", 3),
    Sketcher.Constraint("Coincident", 3, 1, 1, 2),
    Sketcher.Constraint("Equal", 2, 3),
    Sketcher.Constraint("DistanceX", 1, 2, 1, 1, Q("4 mm")),
    Sketcher.Constraint("DistanceY", 2, 2, 2, 1, Q("8 mm")),
    Sketcher.Constraint("DistanceY", 0, 2, -1, 1, Q("3.8 mm")),
    Sketcher.Constraint("DistanceX", -1, 1, 0, 2, Q("7.375 mm")),
])
groove = body.newObject("PartDesign::Groove", "Groove")
groove.Profile = sketch11
groove.ReferenceAxis = (sketch11, ["Axis0"])
groove.Angle = 360

# Sketch on XY plane
sketch12 = body.newObject("Sketcher::SketchObject", "Sketch011")
sketch12.AttachmentSupport = (doc.getObject("XY_Plane"), [""])
sketch12.MapMode = "FlatFace"
sketch12.AttachmentOffset = App.Placement(V(0, 0, 15.5), App.Rotation())
sketch12.addGeometry([
    Part.LineSegment(V(14.782176, -11.853186, 0), V(7.25, -8.185789, 0)),  # 0
    Part.LineSegment(V(7.25, -8.185789, 0), V(7.25, -18.6, 0)),  # 1
    Part.LineSegment(V(7.25, -18.6, 0), V(21.799747, -18.6, 0)),  # 2
    Part.LineSegment(V(21.799747, -18.6, 0), V(15.724874, -12.525126, 0)),  # 3
    Part.ArcOfCircle(Part.Circle(V(13.25, -15, 0), V(0, 0, 1), 3.5), math.radians(45), math.radians(64.03867)),  # 4
    Part.Circle(V(13.25, -15, 0), V(0, 0, 1), 1.65),  # 5
], False)
sketch12.addConstraint([
    Sketcher.Constraint("Coincident", 0, 2, 1, 1),
    Sketcher.Constraint("Coincident", 1, 2, 2, 1),
    Sketcher.Constraint("Coincident", 2, 2, 3, 1),
    Sketcher.Constraint("Tangent", 3, 2, 4, 1),
    Sketcher.Constraint("Tangent", 4, 2, 0, 1),
    Sketcher.Constraint("Vertical", 1),
    Sketcher.Constraint("Horizontal", 2),
    Sketcher.Constraint("Coincident", 5, 3, 4, 3),
    Sketcher.Constraint("Diameter", 5, Q("3.3 mm")),
    Sketcher.Constraint("Radius", 4, Q("3.5 mm")),
    Sketcher.Constraint("Angle", 3, Q("135 deg")),
    Sketcher.Constraint("DistanceY", 4, 3, -1, 1, Q("15 mm")),
    Sketcher.Constraint("DistanceX", 0, 2, 4, 3, Q("6 mm")),
    Sketcher.Constraint("DistanceY", 1, 2, -1, 1, Q("18.6 mm")),
    Sketcher.Constraint("DistanceX", -1, 1, 4, 3, Q("13.25 mm")),
    Sketcher.Constraint("DistanceY", 1, 2, 1, 1, Q("10.414211 mm")),
])
pad2 = body.newObject("PartDesign::Pad", "Pad001")
pad2.Profile = sketch12
pad2.Type = "TwoLengths"
pad2.Length = 4.5
pad2.Length2 = 4.5

# Sketch on XY plane
sketch13 = body.newObject("Sketcher::SketchObject", "Sketch012")
sketch13.AttachmentSupport = (doc.getObject("XY_Plane"), [""])
sketch13.MapMode = "FlatFace"
sketch13.AttachmentOffset = App.Placement(V(0, 0, 20), App.Rotation())
sketch13.addGeometry(Part.Circle(V(13.25, -15, 0), V(0, 0, 1), 4.5), False)
sketch13.addConstraint([
    Sketcher.Constraint("Diameter", 0, Q("9 mm")),
    Sketcher.Constraint("DistanceY", 0, 3, -1, 1, Q("15 mm")),
    Sketcher.Constraint("DistanceX", -1, 1, 0, 3, Q("13.25 mm")),
])
pocket10 = body.newObject("PartDesign::Pocket", "Pocket009")
pocket10.Profile = sketch13
pocket10.Length = 7
pocket10.Reversed = True
doc.recompute()

datumplane = body.newObject("PartDesign::Plane", "DatumPlane")
datumplane.AttachmentSupport = (doc.getObject("XY_Plane"), [""])
datumplane.MapMode = "FlatFace"
datumplane.AttachmentOffset = App.Placement(V(0, 0, 15.5), App.Rotation())
mirrored = body.newObject("PartDesign::Mirrored", "Mirrored")
mirrored.Originals = [pocket10]
mirrored.MirrorPlane = (datumplane, [""])
body.Tip = mirrored
doc.recompute()

chamfer3 = body.newObject("PartDesign::Chamfer", "Chamfer002")
chamfer3.Base = (mirrored, edges_at(mirrored, [(8.5, 17.567, 28)]))
chamfer3.ChamferType = "Two distances"
chamfer3.Size = 8.5
chamfer3.Size2 = 10
doc.recompute()

fillet2 = body.newObject("PartDesign::Fillet", "Fillet001")
fillet2.Base = (chamfer3, edges_at(chamfer3, [(-28.5, 19.4, 2.5)]))
fillet2.Radius = 5
doc.recompute()

fillet3 = body.newObject("PartDesign::Fillet", "Fillet002")
fillet3.Base = (fillet2, edges_at(fillet2, [(-55, -8, 2.5)]))
fillet3.Radius = 6
doc.recompute()

fillet4 = body.newObject("PartDesign::Fillet", "Fillet003")
fillet4.Base = (fillet3, edges_at(fillet3, [(34.5, -21.1, 28)]))
fillet4.Radius = 12

# Sketch on XZ plane
sketch14 = body.newObject("Sketcher::SketchObject", "Sketch013")
sketch14.AttachmentSupport = (doc.getObject("XZ_Plane"), [""])
sketch14.MapMode = "FlatFace"
sketch14.AttachmentOffset = App.Placement(V(0, 0, 18.6), App.Rotation())
add_polygon(sketch14, [(7.525, 28.722035), (-0.775, 28.722035), (-0.775, 13.103996), (3.375, 10.707993), (7.525, 13.103996)])  # lines 0-4
sketch14.addConstraint([
    Sketcher.Constraint("Horizontal", 0),
    Sketcher.Constraint("Vertical", 1),
    Sketcher.Constraint("Vertical", 4),
    Sketcher.Constraint("Horizontal", 1, 2, 3, 2),
    Sketcher.Constraint("Equal", 2, 3),
    Sketcher.Constraint("Angle", 2, Q("-30 deg")),
    Sketcher.Constraint("DistanceX", 0, 2, 0, 1, Q("8.3 mm")),
    Sketcher.Constraint("DistanceX", 0, 2, -1, 1, Q("0.775 mm")),
    Sketcher.Constraint("DistanceY", 1, 2, 1, 1, Q("15.618039 mm")),
    Sketcher.Constraint("DistanceY", -1, 1, 0, 2, Q("28.722035 mm")),
])
pocket11 = body.newObject("PartDesign::Pocket", "Pocket010")
pocket11.Profile = sketch14
pocket11.Length = 3.8

# Sketch on XZ plane
sketch15 = body.newObject("Sketcher::SketchObject", "Sketch014")
sketch15.AttachmentSupport = (doc.getObject("XZ_Plane"), [""])
sketch15.MapMode = "FlatFace"
sketch15.AttachmentOffset = App.Placement(V(0, 0, 23.6), App.Rotation())
sketch15.addGeometry(Part.Circle(V(3.375, 15.5, 0), V(0, 0, 1), 3.15), False)
sketch15.addConstraint([
    Sketcher.Constraint("Diameter", 0, Q("6.3 mm")),
    Sketcher.Constraint("DistanceY", -1, 1, 0, 3, Q("15.5 mm")),
    Sketcher.Constraint("DistanceX", -1, 1, 0, 3, Q("3.375 mm")),
])
pocket12 = body.newObject("PartDesign::Pocket", "Pocket011")
pocket12.Profile = sketch15
pocket12.Length = 5

doc.recompute()
